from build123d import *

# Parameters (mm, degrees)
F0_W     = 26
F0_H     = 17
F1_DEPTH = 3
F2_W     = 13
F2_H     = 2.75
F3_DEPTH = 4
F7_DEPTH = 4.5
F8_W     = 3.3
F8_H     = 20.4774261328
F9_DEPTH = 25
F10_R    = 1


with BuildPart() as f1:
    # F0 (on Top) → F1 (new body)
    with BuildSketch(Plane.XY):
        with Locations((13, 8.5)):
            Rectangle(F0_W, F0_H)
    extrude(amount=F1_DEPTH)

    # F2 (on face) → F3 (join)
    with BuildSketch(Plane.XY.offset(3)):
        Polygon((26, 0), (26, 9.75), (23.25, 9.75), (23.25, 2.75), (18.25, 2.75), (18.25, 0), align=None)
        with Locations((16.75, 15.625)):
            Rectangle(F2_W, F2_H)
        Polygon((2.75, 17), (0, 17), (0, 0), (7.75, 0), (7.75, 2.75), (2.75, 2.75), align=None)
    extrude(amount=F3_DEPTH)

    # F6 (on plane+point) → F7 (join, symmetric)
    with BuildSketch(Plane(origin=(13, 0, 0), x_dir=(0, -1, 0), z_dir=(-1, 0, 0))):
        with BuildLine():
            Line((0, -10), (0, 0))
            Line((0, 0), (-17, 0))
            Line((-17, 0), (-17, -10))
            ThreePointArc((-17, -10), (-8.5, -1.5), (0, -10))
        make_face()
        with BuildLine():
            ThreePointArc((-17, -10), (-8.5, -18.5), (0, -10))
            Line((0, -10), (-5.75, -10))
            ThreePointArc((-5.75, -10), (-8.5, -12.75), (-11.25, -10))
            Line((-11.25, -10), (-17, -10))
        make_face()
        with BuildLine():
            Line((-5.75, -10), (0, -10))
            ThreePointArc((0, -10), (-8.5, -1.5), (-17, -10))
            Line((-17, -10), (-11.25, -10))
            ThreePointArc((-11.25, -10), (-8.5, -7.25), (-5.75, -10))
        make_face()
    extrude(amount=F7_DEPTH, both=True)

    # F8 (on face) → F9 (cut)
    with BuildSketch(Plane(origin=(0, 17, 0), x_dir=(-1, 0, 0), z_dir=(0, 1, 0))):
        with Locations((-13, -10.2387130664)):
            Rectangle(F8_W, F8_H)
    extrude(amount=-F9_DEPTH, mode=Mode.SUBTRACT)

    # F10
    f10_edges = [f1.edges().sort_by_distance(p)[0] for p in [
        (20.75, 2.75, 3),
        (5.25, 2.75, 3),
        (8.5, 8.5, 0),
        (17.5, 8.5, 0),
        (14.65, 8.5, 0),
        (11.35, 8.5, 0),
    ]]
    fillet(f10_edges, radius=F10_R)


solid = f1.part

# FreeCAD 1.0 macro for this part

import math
import FreeCAD as App
import Part
import Sketcher

V = App.Vector


def edges_at(feature, points):
    """Names of the edges that pass closest to the given points."""
    edges = feature.Shape.Edges
    near = lambda p: min(range(len(edges)), key=lambda i: edges[i].distToShape(Part.Vertex(*p))[0])
    return sorted({f"Edge{near(p) + 1}" for p in points})

doc = App.newDocument("Part")
body = doc.addObject("PartDesign::Body", "Body")

# Sketch on XY plane
sketch1 = doc.addObject("Sketcher::SketchObject", "Sketch")
body.addObject(sketch1)
sketch1.AttachmentSupport = (doc.XY_Plane, [""])
sketch1.MapMode = "FlatFace"
sketch1.addGeometry([
    Part.LineSegment(V(0, 17, 0), V(0, 0, 0)),
    Part.LineSegment(V(0, 0, 0), V(26, 0, 0)),
    Part.LineSegment(V(26, 0, 0), V(26, 17, 0)),
    Part.LineSegment(V(26, 17, 0), V(0, 17, 0)),
], False)
sketch1.addConstraint([
    Sketcher.Constraint("Coincident", 0, 2, 1, 1),
    Sketcher.Constraint("Coincident", 1, 2, 2, 1),
    Sketcher.Constraint("Coincident", 2, 2, 3, 1),
    Sketcher.Constraint("Coincident", 3, 2, 0, 1),
    Sketcher.Constraint("Vertical", 0),
    Sketcher.Constraint("Horizontal", 1),
    Sketcher.Constraint("Vertical", 2),
    Sketcher.Constraint("Horizontal", 3),
    Sketcher.Constraint("Coincident", 0, 2, -1, 1),
    Sketcher.Constraint("DistanceX", 1, 1, 1, 2, 26.0),
    Sketcher.Constraint("DistanceY", 0, 2, 0, 1, 17.0),
])
pad1 = doc.addObject("PartDesign::Pad", "Pad")
body.addObject(pad1)
pad1.Profile = sketch1
pad1.Length = 3

# Sketch on XY plane
sketch2 = doc.addObject("Sketcher::SketchObject", "Sketch001")
body.addObject(sketch2)
sketch2.AttachmentSupport = (doc.XY_Plane, [""])
sketch2.MapMode = "FlatFace"
sketch2.AttachmentOffset = App.Placement(V(0, 0, 3), App.Rotation())
sketch2.addGeometry([
    Part.LineSegment(V(26, 0, 0), V(26, 9.8, 0)),  # 0
    Part.LineSegment(V(26, 9.8, 0), V(23.2, 9.8, 0)),  # 1
    Part.LineSegment(V(23.2, 9.8, 0), V(23.2, 2.8, 0)),  # 2
    Part.LineSegment(V(23.2, 2.8, 0), V(18.2, 2.8, 0)),  # 3
    Part.LineSegment(V(18.2, 2.8, 0), V(18.2, 0, 0)),  # 4
    Part.LineSegment(V(18.2, 0, 0), V(26, 0, 0)),  # 5
    Part.LineSegment(V(10.2, 17, 0), V(10.2, 14.2, 0)),  # 6
    Part.LineSegment(V(10.2, 14.2, 0), V(23.2, 14.2, 0)),  # 7
    Part.LineSegment(V(23.2, 14.2, 0), V(23.2, 17, 0)),  # 8
    Part.LineSegment(V(23.2, 17, 0), V(10.2, 17, 0)),  # 9
    Part.LineSegment(V(2.8, 17, 0), V(0, 17, 0)),  # 10
    Part.LineSegment(V(0, 17, 0), V(0, 0, 0)),  # 11
    Part.LineSegment(V(0, 0, 0), V(7.8, 0, 0)),  # 12
    Part.LineSegment(V(7.8, 0, 0), V(7.8, 2.8, 0)),  # 13
    Part.LineSegment(V(7.8, 2.8, 0), V(2.8, 2.8, 0)),  # 14
    Part.LineSegment(V(2.8, 2.8, 0), V(2.8, 17, 0)),  # 15
], False)
sketch2.addConstraint([
    Sketcher.Constraint("Coincident", 0, 2, 1, 1),
    Sketcher.Constraint("Coincident", 1, 2, 2, 1),
    Sketcher.Constraint("Coincident", 2, 2, 3, 1),
    Sketcher.Constraint("Coincident", 3, 2, 4, 1),
    Sketcher.Constraint("Coincident", 4, 2, 5, 1),
    Sketcher.Constraint("Coincident", 5, 2, 0, 1),
    Sketcher.Constraint("Coincident", 6, 2, 7, 1),
    Sketcher.Constraint("Coincident", 7, 2, 8, 1),
    Sketcher.Constraint("Coincident", 8, 2, 9, 1),
    Sketcher.Constraint("Coincident", 9, 2, 6, 1),
    Sketcher.Constraint("Coincident", 10, 2, 11, 1),
    Sketcher.Constraint("Coincident", 11, 2, 12, 1),
    Sketcher.Constraint("Coincident", 12, 2, 13, 1),
    Sketcher.Constraint("Coincident", 13, 2, 14, 1),
    Sketcher.Constraint("Coincident", 14, 2, 15, 1),
    Sketcher.Constraint("Coincident", 15, 2, 10, 1),
    Sketcher.Constraint("Vertical", 0),
    Sketcher.Constraint("Horizontal", 1),
    Sketcher.Constraint("Vertical", 2),
    Sketcher.Constraint("Horizontal", 3),
    Sketcher.Constraint("Vertical", 4),
    Sketcher.Constraint("Horizontal", 5),
    Sketcher.Constraint("Vertical", 6),
    Sketcher.Constraint("Horizontal", 7),
    Sketcher.Constraint("Vertical", 8),
    Sketcher.Constraint("Horizontal", 9),
    Sketcher.Constraint("Horizontal", 10),
    Sketcher.Constraint("Vertical", 11),
    Sketcher.Constraint("Horizontal", 12),
    Sketcher.Constraint("Vertical", 13),
    Sketcher.Constraint("Horizontal", 14),
    Sketcher.Constraint("Vertical", 15),
    Sketcher.Constraint("Coincident", 11, 2, -1, 1),
    Sketcher.Constraint("PointOnObject", 4, 2, -1),
    Sketcher.Constraint("Horizontal", 9, 2, 10, 2),
    Sketcher.Constraint("Horizontal", 3, 2, 13, 2),
    Sketcher.Constraint("Vertical", 2, 2, 7, 2),
    Sketcher.Constraint("Equal", 1, 10),
    Sketcher.Constraint("Equal", 5, 12),
    Sketcher.Constraint("Equal", 10, 4),
    Sketcher.Constraint("Equal", 4, 6),
    Sketcher.Constraint("DistanceX", 3, 2, 3, 1, 5.0),
    Sketcher.Constraint("DistanceX", 7, 1, 7, 2, 13.0),
    Sketcher.Constraint("DistanceY", 2, 2, 2, 1, 7.0),
    Sketcher.Constraint("DistanceY", 11, 2, 11, 1, 17.0),
    Sketcher.Constraint("DistanceX", -1, 1, 0, 2, 26.0),
    Sketcher.Constraint("DistanceX", 1, 2, 1, 1, 2.75),
])
pad2 = doc.addObject("PartDesign::Pad", "Pad001")
body.addObject(pad2)
pad2.Profile = sketch2
pad2.Length = 4

# Sketch on YZ plane
sketch3 = doc.addObject("Sketcher::SketchObject", "Sketch002")
body.addObject(sketch3)
sketch3.AttachmentSupport = (doc.YZ_Plane, [""])
sketch3.MapMode = "FlatFace"
sketch3.AttachmentOffset = App.Placement(V(0, 0, 13), App.Rotation())
sketch3.addGeometry([
    Part.LineSegment(V(0, -10, 0), V(0, 0, 0)),  # 0
    Part.LineSegment(V(0, 0, 0), V(17, 0, 0)),  # 1
    Part.LineSegment(V(17, 0, 0), V(17, -10, 0)),  # 2
    Part.ArcOfCircle(Part.Circle(V(8.5, -10, 0), V(0, 0, 1), 8.5), math.radians(180), math.radians(360)),  # 3
    Part.Circle(V(8.5, -10, 0), V(0, 0, 1), 2.8),  # 4
], False)
sketch3.addConstraint([
    Sketcher.Constraint("Coincident", 0, 2, 1, 1),
    Sketcher.Constraint("Coincident", 1, 2, 2, 1),
    Sketcher.Constraint("Tangent", 2, 2, 3, 2),
    Sketcher.Constraint("Tangent", 3, 1, 0, 1),
    Sketcher.Constraint("Vertical", 0),
    Sketcher.Constraint("Horizontal", 1),
    Sketcher.Constraint("Vertical", 2),
    Sketcher.Constraint("Coincident", 0, 2, -1, 1),
    Sketcher.Constraint("Coincident", 4, 3, 3, 3),
    Sketcher.Constraint("Diameter", 4, 5.5),
    Sketcher.Constraint("Radius", 3, 8.5),
    Sketcher.Constraint("DistanceY", 0, 1, 0, 2, 10.0),
])
pad3 = doc.addObject("PartDesign::Pad", "Pad002")
body.addObject(pad3)
pad3.Profile = sketch3
pad3.Length = 9
pad3.Midplane = True

# Sketch on XZ plane
sketch4 = doc.addObject("Sketcher::SketchObject", "Sketch003")
body.addObject(sketch4)
sketch4.AttachmentSupport = (doc.XZ_Plane, [""])
sketch4.MapMode = "FlatFace"
sketch4.AttachmentOffset = App.Placement(V(0, 0, -17), App.Rotation())
sketch4.addGeometry([
    Part.LineSegment(V(14.7, 0, 0), V(14.7, -20.5, 0)),
    Part.LineSegment(V(14.7, -20.5, 0), V(11.3, -20.5, 0)),
    Part.LineSegment(V(11.3, -20.5, 0), V(11.3, 0, 0)),
    Part.LineSegment(V(11.3, 0, 0), V(14.7, 0, 0)),
], False)
sketch4.addConstraint([
    Sketcher.Constraint("Coincident", 0, 2, 1, 1),
    Sketcher.Constraint("Coincident", 1, 2, 2, 1),
    Sketcher.Constraint("Coincident", 2, 2, 3, 1),
    Sketcher.Constraint("Coincident", 3, 2, 0, 1),
    Sketcher.Constraint("Vertical", 0),
    Sketcher.Constraint("Horizontal", 1),
    Sketcher.Constraint("Vertical", 2),
    Sketcher.Constraint("Horizontal", 3),
    Sketcher.Constraint("PointOnObject", 2, 2, -1),
    Sketcher.Constraint("DistanceX", 1, 2, 1, 1, 3.3),
    Sketcher.Constraint("DistanceX", -1, 1, 0, 2, 14.65),
    Sketcher.Constraint("DistanceY", 0, 2, 0, 1, 20.477426),
])
pocket1 = doc.addObject("PartDesign::Pocket", "Pocket")
body.addObject(pocket1)
pocket1.Profile = sketch4
pocket1.Length = 25
pocket1.Reversed = True
doc.recompute()

fillet = doc.addObject("PartDesign::Fillet", "Fillet")
body.addObject(fillet)
fillet.Base = (pocket1, edges_at(pocket1, [
    (20.75, 2.75, 3),
    (5.25, 2.75, 3),
    (8.5, 8.5, 0),
    (17.5, 8.5, 0),
    (14.65, 8.5, 0),
    (11.35, 8.5, 0),
]))
fillet.Radius = 1

doc.recompute()
